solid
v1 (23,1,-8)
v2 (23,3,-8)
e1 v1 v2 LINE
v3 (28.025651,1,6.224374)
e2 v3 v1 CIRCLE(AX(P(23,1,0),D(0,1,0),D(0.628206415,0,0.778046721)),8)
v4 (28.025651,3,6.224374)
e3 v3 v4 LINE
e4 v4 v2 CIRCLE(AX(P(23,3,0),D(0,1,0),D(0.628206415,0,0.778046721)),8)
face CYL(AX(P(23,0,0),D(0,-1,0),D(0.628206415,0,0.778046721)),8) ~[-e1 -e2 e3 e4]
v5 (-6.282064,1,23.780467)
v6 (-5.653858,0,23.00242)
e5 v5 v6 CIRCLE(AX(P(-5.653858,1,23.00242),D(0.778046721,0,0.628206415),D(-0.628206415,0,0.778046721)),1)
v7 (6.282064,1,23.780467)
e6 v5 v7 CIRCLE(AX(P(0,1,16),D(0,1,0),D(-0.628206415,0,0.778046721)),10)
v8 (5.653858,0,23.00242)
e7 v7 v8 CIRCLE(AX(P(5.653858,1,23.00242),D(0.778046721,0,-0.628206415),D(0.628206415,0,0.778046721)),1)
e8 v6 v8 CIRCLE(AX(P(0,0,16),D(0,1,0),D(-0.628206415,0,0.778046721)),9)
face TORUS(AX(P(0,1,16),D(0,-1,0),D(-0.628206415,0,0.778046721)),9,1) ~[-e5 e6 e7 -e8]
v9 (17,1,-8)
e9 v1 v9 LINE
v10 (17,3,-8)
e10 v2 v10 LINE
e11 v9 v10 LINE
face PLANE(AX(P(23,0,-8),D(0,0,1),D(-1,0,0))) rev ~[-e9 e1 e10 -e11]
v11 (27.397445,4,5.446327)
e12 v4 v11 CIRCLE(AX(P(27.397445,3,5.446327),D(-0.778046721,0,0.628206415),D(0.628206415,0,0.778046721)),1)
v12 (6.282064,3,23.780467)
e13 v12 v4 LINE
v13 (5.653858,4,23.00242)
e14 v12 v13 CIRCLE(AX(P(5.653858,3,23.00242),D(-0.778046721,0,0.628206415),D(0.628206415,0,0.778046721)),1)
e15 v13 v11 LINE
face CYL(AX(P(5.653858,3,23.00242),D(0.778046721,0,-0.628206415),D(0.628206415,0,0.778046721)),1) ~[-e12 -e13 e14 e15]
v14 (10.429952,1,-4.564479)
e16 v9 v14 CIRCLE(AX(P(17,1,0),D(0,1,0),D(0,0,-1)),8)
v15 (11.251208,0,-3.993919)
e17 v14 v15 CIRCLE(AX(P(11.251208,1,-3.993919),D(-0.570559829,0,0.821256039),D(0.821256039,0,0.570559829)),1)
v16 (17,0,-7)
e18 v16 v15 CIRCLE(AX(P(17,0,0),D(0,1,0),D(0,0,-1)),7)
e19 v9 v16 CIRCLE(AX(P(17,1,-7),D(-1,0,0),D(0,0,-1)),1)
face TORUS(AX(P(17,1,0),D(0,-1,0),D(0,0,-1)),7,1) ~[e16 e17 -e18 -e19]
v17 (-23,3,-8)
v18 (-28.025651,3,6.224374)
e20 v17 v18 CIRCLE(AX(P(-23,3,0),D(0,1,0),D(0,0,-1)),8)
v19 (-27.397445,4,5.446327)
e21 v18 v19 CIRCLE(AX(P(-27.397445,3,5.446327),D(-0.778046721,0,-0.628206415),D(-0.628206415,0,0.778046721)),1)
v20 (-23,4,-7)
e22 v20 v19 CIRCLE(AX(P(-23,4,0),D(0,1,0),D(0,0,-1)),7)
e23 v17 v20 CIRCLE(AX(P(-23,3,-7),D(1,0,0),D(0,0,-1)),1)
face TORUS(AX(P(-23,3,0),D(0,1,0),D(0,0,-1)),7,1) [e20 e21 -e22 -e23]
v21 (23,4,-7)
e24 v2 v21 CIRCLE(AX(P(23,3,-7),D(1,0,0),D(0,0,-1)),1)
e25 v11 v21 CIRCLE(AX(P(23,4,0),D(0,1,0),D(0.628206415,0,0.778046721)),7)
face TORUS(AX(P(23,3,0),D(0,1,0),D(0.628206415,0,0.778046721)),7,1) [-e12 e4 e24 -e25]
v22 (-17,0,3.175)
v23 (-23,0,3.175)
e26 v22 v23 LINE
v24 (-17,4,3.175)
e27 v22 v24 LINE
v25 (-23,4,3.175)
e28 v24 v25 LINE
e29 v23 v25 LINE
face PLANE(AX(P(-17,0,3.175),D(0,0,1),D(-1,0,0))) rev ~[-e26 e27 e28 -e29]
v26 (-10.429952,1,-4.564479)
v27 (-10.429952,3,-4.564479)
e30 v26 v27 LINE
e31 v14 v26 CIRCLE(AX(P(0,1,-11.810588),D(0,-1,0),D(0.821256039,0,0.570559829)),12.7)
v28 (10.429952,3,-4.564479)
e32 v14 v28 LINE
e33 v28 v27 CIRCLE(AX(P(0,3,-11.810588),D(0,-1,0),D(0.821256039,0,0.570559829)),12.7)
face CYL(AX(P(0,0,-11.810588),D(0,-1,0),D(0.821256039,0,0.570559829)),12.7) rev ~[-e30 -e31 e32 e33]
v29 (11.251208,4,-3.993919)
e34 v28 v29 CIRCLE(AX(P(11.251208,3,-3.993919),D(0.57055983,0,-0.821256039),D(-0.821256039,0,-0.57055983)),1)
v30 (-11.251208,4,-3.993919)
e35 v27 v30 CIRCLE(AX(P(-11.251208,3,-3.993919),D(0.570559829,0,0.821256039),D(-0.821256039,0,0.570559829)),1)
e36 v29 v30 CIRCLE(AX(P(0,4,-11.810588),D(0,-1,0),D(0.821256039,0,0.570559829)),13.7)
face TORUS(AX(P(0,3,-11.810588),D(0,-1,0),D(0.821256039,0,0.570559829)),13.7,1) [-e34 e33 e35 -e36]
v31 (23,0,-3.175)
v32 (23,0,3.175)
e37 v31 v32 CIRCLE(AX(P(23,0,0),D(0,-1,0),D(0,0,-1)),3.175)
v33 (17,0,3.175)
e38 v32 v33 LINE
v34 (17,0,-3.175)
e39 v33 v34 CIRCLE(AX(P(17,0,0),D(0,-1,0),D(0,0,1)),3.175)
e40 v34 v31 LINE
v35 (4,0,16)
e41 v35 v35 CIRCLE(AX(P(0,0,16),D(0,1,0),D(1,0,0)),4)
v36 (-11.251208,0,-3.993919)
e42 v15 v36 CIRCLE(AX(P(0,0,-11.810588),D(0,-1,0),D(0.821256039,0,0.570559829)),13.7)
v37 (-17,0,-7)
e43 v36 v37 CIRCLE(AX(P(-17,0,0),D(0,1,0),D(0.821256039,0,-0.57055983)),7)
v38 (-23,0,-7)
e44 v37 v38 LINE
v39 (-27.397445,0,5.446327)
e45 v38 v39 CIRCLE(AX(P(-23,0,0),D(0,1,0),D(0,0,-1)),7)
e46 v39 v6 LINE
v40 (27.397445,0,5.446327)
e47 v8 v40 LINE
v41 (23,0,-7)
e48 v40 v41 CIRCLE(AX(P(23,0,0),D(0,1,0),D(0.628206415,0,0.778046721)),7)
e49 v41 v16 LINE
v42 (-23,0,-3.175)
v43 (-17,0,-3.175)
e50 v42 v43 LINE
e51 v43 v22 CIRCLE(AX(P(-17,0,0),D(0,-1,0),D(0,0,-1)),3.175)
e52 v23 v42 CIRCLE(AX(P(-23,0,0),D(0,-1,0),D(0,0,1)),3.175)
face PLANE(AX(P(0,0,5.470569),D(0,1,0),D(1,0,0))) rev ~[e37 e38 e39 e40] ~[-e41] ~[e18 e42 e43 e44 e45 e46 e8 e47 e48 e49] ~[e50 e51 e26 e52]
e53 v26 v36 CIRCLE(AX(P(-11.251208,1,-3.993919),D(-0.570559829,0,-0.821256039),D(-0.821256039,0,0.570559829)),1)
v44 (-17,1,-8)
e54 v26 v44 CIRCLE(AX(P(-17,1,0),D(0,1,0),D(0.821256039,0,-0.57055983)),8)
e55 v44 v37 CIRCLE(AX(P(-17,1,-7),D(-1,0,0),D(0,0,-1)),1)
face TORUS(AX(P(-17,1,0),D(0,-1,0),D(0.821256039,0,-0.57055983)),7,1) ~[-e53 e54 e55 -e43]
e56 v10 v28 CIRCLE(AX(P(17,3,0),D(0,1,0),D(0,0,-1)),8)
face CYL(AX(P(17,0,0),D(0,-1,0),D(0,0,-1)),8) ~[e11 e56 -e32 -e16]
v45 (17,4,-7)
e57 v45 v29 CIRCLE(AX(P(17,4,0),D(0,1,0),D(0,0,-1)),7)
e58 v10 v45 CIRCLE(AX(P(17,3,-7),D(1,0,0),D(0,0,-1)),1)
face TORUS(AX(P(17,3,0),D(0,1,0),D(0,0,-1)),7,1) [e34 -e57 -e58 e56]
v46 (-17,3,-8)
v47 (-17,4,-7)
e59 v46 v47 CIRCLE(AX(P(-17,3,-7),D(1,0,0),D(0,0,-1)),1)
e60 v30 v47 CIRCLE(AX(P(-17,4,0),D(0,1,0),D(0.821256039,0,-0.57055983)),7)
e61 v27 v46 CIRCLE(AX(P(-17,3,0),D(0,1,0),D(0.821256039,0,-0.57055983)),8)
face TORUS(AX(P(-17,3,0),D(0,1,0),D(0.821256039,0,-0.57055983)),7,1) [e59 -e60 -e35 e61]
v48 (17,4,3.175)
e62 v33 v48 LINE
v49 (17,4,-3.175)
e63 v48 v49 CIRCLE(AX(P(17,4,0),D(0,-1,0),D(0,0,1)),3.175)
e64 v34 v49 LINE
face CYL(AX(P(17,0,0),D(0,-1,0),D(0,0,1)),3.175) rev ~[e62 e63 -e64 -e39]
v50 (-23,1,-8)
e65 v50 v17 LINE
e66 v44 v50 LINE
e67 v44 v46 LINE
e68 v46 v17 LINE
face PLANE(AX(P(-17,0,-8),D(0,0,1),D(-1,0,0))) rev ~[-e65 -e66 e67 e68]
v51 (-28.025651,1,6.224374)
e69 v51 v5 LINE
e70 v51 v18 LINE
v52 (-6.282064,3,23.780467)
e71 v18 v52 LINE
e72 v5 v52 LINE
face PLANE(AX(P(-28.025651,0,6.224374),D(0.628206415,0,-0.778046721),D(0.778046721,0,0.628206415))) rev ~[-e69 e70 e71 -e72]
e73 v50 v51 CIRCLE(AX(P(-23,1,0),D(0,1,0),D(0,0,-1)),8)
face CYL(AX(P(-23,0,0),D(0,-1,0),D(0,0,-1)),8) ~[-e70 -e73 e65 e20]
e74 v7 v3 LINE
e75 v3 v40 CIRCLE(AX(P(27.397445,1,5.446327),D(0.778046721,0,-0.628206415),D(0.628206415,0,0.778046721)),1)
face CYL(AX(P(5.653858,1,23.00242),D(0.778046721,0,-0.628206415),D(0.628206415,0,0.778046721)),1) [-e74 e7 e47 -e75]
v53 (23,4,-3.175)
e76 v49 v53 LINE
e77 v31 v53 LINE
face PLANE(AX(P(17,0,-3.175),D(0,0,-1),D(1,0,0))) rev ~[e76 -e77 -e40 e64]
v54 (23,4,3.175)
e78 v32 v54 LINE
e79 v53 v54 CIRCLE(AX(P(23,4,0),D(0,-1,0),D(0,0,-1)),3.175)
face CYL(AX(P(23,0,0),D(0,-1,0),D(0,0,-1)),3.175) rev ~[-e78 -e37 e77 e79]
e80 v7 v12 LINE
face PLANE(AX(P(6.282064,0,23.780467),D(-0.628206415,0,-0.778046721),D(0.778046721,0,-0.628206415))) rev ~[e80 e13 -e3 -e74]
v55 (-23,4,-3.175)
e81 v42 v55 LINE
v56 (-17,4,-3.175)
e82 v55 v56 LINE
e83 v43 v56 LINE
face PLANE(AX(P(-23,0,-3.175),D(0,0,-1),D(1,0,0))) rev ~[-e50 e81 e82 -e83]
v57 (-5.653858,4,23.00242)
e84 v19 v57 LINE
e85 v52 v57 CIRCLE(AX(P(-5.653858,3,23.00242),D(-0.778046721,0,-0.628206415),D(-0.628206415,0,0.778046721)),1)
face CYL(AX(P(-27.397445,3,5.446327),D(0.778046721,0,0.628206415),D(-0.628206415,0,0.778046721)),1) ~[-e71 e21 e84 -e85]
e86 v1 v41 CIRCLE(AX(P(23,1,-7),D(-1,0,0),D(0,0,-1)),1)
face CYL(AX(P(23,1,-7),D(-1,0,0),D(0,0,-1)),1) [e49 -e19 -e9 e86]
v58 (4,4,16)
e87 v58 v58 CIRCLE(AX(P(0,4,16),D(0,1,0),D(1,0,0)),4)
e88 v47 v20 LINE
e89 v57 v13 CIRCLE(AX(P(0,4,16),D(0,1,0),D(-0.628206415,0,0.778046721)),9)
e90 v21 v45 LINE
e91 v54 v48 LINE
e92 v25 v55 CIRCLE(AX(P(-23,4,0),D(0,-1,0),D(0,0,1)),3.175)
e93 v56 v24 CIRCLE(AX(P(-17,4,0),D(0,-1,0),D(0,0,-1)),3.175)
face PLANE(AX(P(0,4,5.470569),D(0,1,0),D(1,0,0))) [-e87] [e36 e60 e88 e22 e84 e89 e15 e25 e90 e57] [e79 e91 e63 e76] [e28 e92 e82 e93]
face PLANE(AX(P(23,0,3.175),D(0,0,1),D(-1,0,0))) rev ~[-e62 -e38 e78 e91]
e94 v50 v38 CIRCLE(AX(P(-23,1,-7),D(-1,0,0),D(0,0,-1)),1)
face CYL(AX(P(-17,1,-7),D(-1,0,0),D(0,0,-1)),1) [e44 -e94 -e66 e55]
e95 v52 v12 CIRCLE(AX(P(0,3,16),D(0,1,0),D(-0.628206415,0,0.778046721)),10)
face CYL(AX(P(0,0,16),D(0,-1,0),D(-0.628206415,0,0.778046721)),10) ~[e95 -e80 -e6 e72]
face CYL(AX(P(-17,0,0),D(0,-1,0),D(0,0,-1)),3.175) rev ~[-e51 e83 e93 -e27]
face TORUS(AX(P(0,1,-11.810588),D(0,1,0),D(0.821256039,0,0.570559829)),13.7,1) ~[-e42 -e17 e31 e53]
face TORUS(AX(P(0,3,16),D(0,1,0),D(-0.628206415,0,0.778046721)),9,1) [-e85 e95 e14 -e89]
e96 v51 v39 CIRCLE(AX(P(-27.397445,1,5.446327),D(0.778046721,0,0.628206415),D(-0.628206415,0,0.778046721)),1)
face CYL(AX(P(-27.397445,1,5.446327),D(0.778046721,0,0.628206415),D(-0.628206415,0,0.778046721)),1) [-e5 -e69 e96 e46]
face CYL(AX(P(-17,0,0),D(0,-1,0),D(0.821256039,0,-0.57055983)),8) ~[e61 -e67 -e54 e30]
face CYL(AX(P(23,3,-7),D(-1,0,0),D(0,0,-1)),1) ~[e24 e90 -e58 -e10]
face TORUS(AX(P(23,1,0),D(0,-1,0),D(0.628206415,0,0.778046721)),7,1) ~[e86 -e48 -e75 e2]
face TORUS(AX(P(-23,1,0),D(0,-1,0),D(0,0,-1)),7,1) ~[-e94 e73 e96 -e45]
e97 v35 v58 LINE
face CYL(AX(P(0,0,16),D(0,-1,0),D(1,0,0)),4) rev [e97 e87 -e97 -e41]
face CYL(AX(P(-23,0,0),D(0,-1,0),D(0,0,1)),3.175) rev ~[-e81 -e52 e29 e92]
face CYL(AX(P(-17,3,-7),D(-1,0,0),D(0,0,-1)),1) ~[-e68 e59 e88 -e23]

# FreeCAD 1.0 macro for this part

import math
import FreeCAD as App
import Part
import Sketcher
from FreeCAD import Vector


def edges_at(feature, points):
    """Names of the edges that pass closest to the given points."""
    edges = feature.Shape.Edges
    near = lambda p: min(range(len(edges)), key=lambda i: edges[i].distToShape(Part.Vertex(*p))[0])
    return sorted({f"Edge{near(p) + 1}" for p in points})

doc = App.newDocument("Part")
body = doc.addObject("PartDesign::Body", "Body")

# Sketch on XZ plane
sketch1 = body.newObject("Sketcher::SketchObject", "Sketch")
sketch1.AttachmentSupport = (doc.getObject("XZ_Plane"), [""])
sketch1.MapMode = "FlatFace"
sketch1.addGeometry(Part.LineSegment(Vector(-28, 6.2, 0), Vector(-6.3, 23.8, 0)), False)
sketch1.addGeometry(Part.ArcOfCircle(Part.Circle(Vector(0, 16, 0), Vector(0, 0, 1), 10), math.radians(51), math.radians(129)), False)
sketch1.addGeometry(Part.LineSegment(Vector(6.3, 23.8, 0), Vector(28, 6.2, 0)), False)
sketch1.addGeometry(Part.ArcOfCircle(Part.Circle(Vector(23, 0, 0), Vector(0, 0, 1), 8), math.radians(-90), math.radians(51)), False)
sketch1.addGeometry(Part.LineSegment(Vector(23, -8, 0), Vector(17, -8, 0)), False)
sketch1.addGeometry(Part.ArcOfCircle(Part.Circle(Vector(17, 0, 0), Vector(0, 0, 1), 8), math.radians(-145), math.radians(-90)), False)
sketch1.addGeometry(Part.ArcOfCircle(Part.Circle(Vector(0, -11.8, 0), Vector(0, 0, 1), 12.7), math.radians(35), math.radians(145)), False)
sketch1.addGeometry(Part.ArcOfCircle(Part.Circle(Vector(-17, 0, 0), Vector(0, 0, 1), 8), math.radians(-90), math.radians(-35)), False)
sketch1.addGeometry(Part.LineSegment(Vector(-17, -8, 0), Vector(-23, -8, 0)), False)
sketch1.addGeometry(Part.ArcOfCircle(Part.Circle(Vector(-23, 0, 0), Vector(0, 0, 1), 8), math.radians(129), math.radians(270)), False)
sketch1.addGeometry(Part.Circle(Vector(0, 16, 0), Vector(0, 0, 1), 4), False)
sketch1.addGeometry(Part.ArcOfCircle(Part.Circle(Vector(-23, 0, 0), Vector(0, 0, 1), 3.2), math.radians(90), math.radians(270)), False)
sketch1.addGeometry(Part.LineSegment(Vector(-23, -3.2, 0), Vector(-17, -3.2, 0)), False)
sketch1.addGeometry(Part.ArcOfCircle(Part.Circle(Vector(-17, 0, 0), Vector(0, 0, 1), 3.2), math.radians(-90), math.radians(90)), False)
sketch1.addGeometry(Part.LineSegment(Vector(-17, 3.2, 0), Vector(-23, 3.2, 0)), False)
sketch1.addGeometry(Part.ArcOfCircle(Part.Circle(Vector(17, 0, 0), Vector(0, 0, 1), 3.2), math.radians(90), math.radians(270)), False)
sketch1.addGeometry(Part.LineSegment(Vector(17, -3.2, 0), Vector(23, -3.2, 0)), False)
sketch1.addGeometry(Part.ArcOfCircle(Part.Circle(Vector(23, 0, 0), Vector(0, 0, 1), 3.2), math.radians(-90), math.radians(90)), False)
sketch1.addGeometry(Part.LineSegment(Vector(23, 3.2, 0), Vector(17, 3.2, 0)), False)
sketch1.addConstraint(Sketcher.Constraint("Tangent", 0, 2, 1, 2))
sketch1.addConstraint(Sketcher.Constraint("Tangent", 1, 1, 2, 1))
sketch1.addConstraint(Sketcher.Constraint("Tangent", 2, 2, 3, 2))
sketch1.addConstraint(Sketcher.Constraint("Tangent", 3, 1, 4, 1))
sketch1.addConstraint(Sketcher.Constraint("Tangent", 4, 2, 5, 2))
sketch1.addConstraint(Sketcher.Constraint("Tangent", 5, 1, 6, 1))
sketch1.addConstraint(Sketcher.Constraint("Tangent", 6, 2, 7, 2))
sketch1.addConstraint(Sketcher.Constraint("Tangent", 7, 1, 8, 1))
sketch1.addConstraint(Sketcher.Constraint("Tangent", 8, 2, 9, 2))
sketch1.addConstraint(Sketcher.Constraint("Tangent", 9, 1, 0, 1))
sketch1.addConstraint(Sketcher.Constraint("Tangent", 11, 2, 12, 1))
sketch1.addConstraint(Sketcher.Constraint("Tangent", 12, 2, 13, 1))
sketch1.addConstraint(Sketcher.Constraint("Tangent", 13, 2, 14, 1))
sketch1.addConstraint(Sketcher.Constraint("Tangent", 14, 2, 11, 1))
sketch1.addConstraint(Sketcher.Constraint("Tangent", 15, 2, 16, 1))
sketch1.addConstraint(Sketcher.Constraint("Tangent", 16, 2, 17, 1))
sketch1.addConstraint(Sketcher.Constraint("Tangent", 17, 2, 18, 1))
sketch1.addConstraint(Sketcher.Constraint("Tangent", 18, 2, 15, 1))
sketch1.addConstraint(Sketcher.Constraint("Horizontal", 4))
sketch1.addConstraint(Sketcher.Constraint("Horizontal", 8))
sketch1.addConstraint(Sketcher.Constraint("Horizontal", 12))
sketch1.addConstraint(Sketcher.Constraint("Horizontal", 14))
sketch1.addConstraint(Sketcher.Constraint("Horizontal", 16))
sketch1.addConstraint(Sketcher.Constraint("Horizontal", 18))
sketch1.addConstraint(Sketcher.Constraint("Coincident", 10, 3, 1, 3))
sketch1.addConstraint(Sketcher.Constraint("Coincident", 11, 3, 9, 3))
sketch1.addConstraint(Sketcher.Constraint("Coincident", 13, 3, 7, 3))
sketch1.addConstraint(Sketcher.Constraint("Coincident", 15, 3, 5, 3))
sketch1.addConstraint(Sketcher.Constraint("Coincident", 17, 3, 3, 3))
sketch1.addConstraint(Sketcher.Constraint("Equal", 5, 7))
sketch1.addConstraint(Sketcher.Constraint("Equal", 13, 15))
sketch1.addConstraint(Sketcher.Constraint("Symmetric", 5, 3, 7, 3, -1, 1))
sketch1.addConstraint(Sketcher.Constraint("Symmetric", 3, 3, 9, 3, -2))
sketch1.addConstraint(Sketcher.Constraint("PointOnObject", 1, 3, -2))
sketch1.addConstraint(Sketcher.Constraint("Diameter", 10, 8.0))
sketch1.addConstraint(Sketcher.Constraint("Radius", 1, 10.0))
sketch1.addConstraint(Sketcher.Constraint("Radius", 3, 8.0))
sketch1.addConstraint(Sketcher.Constraint("Radius", 6, 12.7))
sketch1.addConstraint(Sketcher.Constraint("DistanceX", 4, 2, 4, 1, 6.0))
sketch1.addConstraint(Sketcher.Constraint("DistanceY", -1, 1, 1, 3, 16.0))
sketch1.addConstraint(Sketcher.Constraint("DistanceX", -1, 1, 3, 3, 23.0))
sketch1.addConstraint(Sketcher.Constraint("Radius", 11, 3.175))
pad1 = body.newObject("PartDesign::Pad", "Pad")
pad1.Profile = sketch1
pad1.Length = 4
pad1.Reversed = True
doc.recompute()

fillet = body.newObject("PartDesign::Fillet", "Fillet")
fillet.Base = (pad1, edges_at(pad1, [
    (0, 4, 26),
    (0, 0, 0.889),
    (13.293, 0, -7.089),
    (20, 0, -8),
    (30.543, 0, -2.665),
    (17.154, 0, 15.002),
    (0, 0, 26),
    (-17.154, 0, 15.002),
    (-30.543, 0, -2.665),
    (17.154, 4, 15.002),
    (30.543, 4, -2.665),
    (20, 4, -8),
    (13.293, 4, -7.089),
    (0, 4, 0.889),
    (-13.293, 4, -7.089),
    (-20, 4, -8),
    (-30.543, 4, -2.665),
    (-17.154, 4, 15.002),
    (-20, 0, -8),
    (-13.293, 0, -7.089),
]))
fillet.Radius = 1

doc.recompute()
